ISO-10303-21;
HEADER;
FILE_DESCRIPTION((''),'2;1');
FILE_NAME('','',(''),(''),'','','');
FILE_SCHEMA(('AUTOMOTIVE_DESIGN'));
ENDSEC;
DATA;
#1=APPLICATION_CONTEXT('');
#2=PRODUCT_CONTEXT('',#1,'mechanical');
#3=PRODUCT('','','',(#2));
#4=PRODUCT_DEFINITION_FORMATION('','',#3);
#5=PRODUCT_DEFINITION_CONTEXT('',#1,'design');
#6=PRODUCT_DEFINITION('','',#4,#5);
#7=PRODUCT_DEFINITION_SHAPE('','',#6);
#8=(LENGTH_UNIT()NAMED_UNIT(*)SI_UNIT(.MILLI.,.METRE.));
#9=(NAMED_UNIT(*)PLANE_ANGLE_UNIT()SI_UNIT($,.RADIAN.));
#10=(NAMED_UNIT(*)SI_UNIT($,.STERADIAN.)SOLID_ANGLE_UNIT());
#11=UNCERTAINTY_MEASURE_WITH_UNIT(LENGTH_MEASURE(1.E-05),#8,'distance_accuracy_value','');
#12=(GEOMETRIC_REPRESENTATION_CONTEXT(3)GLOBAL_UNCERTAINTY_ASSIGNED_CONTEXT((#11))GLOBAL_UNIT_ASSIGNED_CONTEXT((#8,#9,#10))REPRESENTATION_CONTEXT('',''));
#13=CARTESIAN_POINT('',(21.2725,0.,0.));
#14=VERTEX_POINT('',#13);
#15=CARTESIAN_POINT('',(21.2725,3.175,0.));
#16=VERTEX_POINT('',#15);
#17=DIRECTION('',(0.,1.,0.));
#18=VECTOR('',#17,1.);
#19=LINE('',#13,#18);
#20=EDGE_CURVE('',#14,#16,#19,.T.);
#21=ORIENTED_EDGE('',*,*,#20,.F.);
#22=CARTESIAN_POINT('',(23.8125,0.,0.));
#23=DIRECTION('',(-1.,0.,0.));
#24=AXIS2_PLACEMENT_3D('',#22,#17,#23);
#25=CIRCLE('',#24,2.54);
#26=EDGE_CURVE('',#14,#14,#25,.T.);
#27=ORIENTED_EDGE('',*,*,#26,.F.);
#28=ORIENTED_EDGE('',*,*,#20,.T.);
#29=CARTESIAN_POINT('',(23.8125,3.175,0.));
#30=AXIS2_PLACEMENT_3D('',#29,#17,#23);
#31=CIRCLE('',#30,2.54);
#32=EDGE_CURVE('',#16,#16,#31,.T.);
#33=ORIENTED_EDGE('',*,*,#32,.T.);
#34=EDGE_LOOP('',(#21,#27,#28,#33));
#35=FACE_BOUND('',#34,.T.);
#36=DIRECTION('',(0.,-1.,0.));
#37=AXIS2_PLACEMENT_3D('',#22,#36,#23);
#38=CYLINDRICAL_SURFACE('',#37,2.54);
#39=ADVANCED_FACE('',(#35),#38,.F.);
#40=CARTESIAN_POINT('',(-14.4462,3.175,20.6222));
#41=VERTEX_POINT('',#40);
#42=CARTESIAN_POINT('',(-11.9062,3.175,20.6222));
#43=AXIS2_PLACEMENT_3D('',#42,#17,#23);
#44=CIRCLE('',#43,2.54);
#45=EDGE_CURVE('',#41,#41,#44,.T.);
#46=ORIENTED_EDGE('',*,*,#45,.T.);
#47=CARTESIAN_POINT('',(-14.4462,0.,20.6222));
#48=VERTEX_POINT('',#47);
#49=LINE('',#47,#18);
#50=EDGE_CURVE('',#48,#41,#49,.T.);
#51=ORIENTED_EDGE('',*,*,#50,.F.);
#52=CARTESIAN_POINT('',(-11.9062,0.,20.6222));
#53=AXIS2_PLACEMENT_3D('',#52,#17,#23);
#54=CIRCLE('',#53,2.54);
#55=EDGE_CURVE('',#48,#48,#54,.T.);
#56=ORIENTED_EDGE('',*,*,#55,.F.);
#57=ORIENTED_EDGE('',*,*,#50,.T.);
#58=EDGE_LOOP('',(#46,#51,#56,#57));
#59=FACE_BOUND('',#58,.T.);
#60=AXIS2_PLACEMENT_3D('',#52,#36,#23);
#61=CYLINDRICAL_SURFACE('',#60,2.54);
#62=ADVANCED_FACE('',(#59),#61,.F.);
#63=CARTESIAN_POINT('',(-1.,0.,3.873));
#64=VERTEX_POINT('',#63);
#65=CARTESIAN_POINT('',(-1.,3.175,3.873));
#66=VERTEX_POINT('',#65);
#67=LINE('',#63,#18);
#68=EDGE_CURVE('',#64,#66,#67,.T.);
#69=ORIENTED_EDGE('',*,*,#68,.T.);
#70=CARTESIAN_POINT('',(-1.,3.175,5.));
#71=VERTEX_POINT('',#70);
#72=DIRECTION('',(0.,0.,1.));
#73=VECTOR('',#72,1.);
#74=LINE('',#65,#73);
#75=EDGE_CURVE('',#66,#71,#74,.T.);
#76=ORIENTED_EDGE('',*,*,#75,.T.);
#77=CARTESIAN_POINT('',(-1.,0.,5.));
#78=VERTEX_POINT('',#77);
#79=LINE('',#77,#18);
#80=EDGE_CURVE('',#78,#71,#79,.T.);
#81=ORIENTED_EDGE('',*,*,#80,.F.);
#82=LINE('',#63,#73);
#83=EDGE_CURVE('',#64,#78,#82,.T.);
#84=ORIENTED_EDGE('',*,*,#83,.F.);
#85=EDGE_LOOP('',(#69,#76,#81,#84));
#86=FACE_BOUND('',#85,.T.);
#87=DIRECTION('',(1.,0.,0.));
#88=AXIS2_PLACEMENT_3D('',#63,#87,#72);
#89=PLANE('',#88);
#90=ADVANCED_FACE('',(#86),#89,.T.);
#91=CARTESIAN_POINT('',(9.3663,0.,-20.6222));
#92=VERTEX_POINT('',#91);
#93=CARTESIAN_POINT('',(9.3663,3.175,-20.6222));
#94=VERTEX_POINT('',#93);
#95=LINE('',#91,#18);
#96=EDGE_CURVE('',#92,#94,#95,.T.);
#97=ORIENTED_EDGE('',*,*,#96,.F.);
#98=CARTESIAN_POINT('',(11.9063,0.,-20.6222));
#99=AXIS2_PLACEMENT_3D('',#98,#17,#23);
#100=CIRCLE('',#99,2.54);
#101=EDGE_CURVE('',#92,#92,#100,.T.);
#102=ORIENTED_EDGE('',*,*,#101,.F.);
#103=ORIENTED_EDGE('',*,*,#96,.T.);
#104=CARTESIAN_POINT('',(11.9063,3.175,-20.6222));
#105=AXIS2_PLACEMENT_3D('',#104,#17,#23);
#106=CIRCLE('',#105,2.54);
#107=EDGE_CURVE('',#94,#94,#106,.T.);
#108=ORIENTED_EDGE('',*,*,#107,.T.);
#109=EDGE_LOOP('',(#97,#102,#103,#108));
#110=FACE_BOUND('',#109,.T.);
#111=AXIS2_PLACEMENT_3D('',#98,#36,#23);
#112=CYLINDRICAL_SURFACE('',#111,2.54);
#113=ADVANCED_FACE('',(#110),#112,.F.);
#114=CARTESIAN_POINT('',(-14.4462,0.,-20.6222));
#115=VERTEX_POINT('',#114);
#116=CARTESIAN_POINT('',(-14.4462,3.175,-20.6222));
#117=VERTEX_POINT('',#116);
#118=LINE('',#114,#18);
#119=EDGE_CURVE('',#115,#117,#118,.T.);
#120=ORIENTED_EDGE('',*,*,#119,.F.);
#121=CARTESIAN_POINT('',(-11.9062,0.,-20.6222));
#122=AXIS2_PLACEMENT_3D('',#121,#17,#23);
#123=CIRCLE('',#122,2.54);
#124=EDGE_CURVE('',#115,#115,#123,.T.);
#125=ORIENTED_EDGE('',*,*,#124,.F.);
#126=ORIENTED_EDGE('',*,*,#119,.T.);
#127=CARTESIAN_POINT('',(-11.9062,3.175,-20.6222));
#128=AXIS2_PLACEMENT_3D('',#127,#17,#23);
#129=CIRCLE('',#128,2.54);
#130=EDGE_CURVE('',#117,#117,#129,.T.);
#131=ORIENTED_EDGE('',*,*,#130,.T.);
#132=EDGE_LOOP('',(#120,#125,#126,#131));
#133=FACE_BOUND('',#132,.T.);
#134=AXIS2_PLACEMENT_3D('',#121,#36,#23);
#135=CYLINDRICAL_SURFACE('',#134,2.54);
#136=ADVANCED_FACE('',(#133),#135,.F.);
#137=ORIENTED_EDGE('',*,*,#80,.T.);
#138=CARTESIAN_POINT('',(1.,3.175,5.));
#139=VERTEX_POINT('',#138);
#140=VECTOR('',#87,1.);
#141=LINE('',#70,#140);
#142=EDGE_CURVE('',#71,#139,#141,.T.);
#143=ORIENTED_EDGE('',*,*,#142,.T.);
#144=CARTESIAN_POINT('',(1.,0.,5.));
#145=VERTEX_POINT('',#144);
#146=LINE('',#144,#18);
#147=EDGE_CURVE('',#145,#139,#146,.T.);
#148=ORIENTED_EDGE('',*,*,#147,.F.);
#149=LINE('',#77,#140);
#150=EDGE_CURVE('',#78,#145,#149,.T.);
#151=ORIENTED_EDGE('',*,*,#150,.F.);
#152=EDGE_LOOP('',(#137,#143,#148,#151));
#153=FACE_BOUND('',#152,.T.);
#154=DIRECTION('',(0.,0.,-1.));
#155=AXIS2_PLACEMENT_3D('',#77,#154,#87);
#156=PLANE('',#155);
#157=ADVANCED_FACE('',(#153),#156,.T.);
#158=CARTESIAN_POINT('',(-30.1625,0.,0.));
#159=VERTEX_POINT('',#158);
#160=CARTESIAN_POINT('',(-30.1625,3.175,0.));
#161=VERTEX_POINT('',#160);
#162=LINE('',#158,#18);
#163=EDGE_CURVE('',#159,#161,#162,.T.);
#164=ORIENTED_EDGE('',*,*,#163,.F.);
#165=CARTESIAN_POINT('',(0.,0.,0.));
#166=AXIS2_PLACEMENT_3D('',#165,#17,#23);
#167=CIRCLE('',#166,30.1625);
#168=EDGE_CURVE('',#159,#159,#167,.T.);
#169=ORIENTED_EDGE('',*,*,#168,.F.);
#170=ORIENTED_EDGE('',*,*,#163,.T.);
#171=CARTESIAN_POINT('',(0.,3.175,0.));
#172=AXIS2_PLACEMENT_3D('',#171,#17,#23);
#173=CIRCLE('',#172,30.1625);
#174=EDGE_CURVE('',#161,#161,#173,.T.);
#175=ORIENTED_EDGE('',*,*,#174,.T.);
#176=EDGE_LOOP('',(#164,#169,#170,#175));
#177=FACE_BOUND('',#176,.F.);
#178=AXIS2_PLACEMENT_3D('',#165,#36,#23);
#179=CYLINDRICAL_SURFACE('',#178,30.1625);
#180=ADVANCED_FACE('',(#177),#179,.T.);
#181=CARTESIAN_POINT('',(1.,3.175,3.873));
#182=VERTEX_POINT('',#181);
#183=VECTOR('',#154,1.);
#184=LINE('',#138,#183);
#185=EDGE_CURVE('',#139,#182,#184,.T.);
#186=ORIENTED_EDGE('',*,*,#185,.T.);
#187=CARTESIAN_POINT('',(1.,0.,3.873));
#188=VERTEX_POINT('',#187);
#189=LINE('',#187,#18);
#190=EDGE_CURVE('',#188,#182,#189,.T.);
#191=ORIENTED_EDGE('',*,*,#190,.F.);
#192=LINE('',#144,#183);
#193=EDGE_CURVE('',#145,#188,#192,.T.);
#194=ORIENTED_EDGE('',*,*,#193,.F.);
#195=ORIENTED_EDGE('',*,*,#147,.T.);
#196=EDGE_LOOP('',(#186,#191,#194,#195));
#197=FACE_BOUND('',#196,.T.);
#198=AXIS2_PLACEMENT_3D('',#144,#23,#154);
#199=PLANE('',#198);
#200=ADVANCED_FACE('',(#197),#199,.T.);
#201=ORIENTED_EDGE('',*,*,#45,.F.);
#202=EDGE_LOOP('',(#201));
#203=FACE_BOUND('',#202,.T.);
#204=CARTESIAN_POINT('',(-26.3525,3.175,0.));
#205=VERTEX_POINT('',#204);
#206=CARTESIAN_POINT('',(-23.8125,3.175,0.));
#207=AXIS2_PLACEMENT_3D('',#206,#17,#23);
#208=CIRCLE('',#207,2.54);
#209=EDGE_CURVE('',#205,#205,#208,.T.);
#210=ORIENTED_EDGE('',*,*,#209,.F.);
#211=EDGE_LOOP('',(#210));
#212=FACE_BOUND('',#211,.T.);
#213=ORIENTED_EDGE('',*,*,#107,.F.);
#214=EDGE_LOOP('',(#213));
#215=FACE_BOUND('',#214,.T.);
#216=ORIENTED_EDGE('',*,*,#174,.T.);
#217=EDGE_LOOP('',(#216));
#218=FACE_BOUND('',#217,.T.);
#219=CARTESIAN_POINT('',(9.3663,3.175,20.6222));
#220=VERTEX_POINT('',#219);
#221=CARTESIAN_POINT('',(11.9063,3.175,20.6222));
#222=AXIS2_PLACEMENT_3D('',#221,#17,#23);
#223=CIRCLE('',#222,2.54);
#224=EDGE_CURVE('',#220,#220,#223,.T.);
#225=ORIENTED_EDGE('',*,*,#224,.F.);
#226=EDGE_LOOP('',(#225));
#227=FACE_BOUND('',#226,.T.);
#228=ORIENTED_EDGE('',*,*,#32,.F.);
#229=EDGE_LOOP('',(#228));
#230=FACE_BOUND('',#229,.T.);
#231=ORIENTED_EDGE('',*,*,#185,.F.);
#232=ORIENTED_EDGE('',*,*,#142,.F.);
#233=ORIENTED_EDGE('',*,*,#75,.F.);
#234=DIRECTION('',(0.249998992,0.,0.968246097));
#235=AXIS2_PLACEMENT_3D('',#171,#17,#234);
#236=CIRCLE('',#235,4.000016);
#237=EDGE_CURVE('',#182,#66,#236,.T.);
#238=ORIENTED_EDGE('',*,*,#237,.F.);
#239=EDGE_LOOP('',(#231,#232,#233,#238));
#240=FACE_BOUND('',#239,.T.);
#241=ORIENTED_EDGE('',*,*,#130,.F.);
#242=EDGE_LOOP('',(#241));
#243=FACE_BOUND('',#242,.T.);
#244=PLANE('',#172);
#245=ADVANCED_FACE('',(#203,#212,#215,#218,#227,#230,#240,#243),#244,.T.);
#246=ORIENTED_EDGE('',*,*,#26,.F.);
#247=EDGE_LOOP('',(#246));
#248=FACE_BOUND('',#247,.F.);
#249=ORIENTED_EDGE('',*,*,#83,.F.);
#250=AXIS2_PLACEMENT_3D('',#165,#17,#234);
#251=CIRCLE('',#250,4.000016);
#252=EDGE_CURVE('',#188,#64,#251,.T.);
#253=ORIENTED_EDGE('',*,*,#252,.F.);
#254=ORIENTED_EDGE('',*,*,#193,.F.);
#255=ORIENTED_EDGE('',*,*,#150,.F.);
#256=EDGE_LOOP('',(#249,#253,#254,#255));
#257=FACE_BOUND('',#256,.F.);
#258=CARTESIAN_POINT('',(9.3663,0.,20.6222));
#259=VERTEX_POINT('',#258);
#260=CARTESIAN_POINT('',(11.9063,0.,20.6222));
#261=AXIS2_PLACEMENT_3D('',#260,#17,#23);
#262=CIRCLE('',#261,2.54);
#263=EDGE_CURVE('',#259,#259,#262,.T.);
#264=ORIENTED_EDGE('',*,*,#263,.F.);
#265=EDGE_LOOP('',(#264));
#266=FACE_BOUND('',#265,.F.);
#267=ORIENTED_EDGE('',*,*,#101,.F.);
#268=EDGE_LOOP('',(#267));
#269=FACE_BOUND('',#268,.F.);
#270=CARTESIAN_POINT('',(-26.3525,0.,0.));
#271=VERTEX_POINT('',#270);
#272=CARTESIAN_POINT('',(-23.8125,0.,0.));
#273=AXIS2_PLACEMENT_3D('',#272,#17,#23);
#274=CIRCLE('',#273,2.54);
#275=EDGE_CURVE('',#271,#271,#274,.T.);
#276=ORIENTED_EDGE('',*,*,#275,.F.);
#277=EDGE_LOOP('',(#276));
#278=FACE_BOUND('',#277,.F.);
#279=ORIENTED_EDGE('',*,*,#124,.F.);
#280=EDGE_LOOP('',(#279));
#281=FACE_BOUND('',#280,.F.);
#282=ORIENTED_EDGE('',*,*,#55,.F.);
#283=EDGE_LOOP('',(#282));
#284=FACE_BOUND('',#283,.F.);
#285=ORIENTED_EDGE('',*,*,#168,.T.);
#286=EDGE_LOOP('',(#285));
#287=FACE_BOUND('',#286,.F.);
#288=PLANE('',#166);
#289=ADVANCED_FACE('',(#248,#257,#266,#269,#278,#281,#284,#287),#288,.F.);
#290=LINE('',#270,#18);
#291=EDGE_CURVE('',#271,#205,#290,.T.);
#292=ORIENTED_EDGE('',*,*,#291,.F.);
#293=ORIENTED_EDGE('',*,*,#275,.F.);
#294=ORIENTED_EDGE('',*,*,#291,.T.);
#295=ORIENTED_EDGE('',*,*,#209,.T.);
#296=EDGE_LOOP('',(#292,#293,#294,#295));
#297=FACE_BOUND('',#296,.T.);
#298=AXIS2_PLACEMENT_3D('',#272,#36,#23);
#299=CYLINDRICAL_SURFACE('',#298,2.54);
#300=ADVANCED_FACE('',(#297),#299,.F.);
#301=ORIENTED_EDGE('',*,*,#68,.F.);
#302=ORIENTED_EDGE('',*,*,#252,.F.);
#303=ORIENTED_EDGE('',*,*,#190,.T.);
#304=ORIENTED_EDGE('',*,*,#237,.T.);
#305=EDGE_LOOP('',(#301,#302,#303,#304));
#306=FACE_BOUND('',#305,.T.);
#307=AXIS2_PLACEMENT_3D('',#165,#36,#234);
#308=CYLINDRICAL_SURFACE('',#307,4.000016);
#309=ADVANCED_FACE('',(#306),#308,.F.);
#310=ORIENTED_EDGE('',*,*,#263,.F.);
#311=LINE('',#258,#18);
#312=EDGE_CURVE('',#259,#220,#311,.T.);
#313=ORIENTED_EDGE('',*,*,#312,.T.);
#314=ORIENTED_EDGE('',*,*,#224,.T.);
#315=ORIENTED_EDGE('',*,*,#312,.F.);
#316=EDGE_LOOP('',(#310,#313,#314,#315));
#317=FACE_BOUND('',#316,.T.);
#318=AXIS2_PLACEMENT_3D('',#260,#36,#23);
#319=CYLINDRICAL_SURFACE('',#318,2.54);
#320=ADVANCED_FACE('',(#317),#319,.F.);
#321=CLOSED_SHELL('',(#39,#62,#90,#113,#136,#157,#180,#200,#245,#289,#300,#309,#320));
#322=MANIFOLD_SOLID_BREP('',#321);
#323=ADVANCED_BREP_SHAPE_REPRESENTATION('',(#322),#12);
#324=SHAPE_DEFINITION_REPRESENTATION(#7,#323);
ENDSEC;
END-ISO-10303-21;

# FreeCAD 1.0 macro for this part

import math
import FreeCAD as App
import Part
import Sketcher

V = App.Vector
Q = App.Units.Quantity

doc = App.newDocument("Part")
body = doc.addObject("PartDesign::Body", "Body")

# Sketch on XZ plane
sketch1 = doc.addObject("Sketcher::SketchObject", "Sketch")
body.addObject(sketch1)
sketch1.AttachmentSupport = (doc.XZ_Plane, [""])
sketch1.MapMode = "FlatFace"
sketch1.addGeometry(Part.Circle(V(0, 0, 0), V(0, 0, 1), 30.2), False)
sketch1.addGeometry(Part.Circle(V(11.9, -20.6, 0), V(0, 0, 1), 2.5), False)
sketch1.addGeometry(Part.Circle(V(-11.9, -20.6, 0), V(0, 0, 1), 2.5), False)
sketch1.addGeometry(Part.Circle(V(23.8, 0, 0), V(0, 0, 1), 2.5), False)
sketch1.addGeometry(Part.Circle(V(11.9, 20.6, 0), V(0, 0, 1), 2.5), False)
sketch1.addGeometry(Part.ArcOfCircle(Part.Circle(V(0, 0, 0), V(0, 0, 1), 4), math.radians(104), math.radians(436)), False)
sketch1.addGeometry(Part.LineSegment(V(1, 3.9, 0), V(1, 5, 0)), False)
sketch1.addGeometry(Part.LineSegment(V(1, 5, 0), V(-1, 5, 0)), False)
sketch1.addGeometry(Part.LineSegment(V(-1, 5, 0), V(-1, 3.9, 0)), False)
sketch1.addGeometry(Part.Circle(V(-23.8, 0, 0), V(0, 0, 1), 2.5), False)
sketch1.addGeometry(Part.Circle(V(-11.9, 20.6, 0), V(0, 0, 1), 2.5), False)
sketch1.addConstraint(Sketcher.Constraint("Coincident", 5, 2, 6, 1))
sketch1.addConstraint(Sketcher.Constraint("Coincident", 6, 2, 7, 1))
sketch1.addConstraint(Sketcher.Constraint("Coincident", 7, 2, 8, 1))
sketch1.addConstraint(Sketcher.Constraint("Coincident", 8, 2, 5, 1))
sketch1.addConstraint(Sketcher.Constraint("Vertical", 6))
sketch1.addConstraint(Sketcher.Constraint("Horizontal", 7))
sketch1.addConstraint(Sketcher.Constraint("Vertical", 8))
sketch1.addConstraint(Sketcher.Constraint("Coincident", 0, 3, -1, 1))
sketch1.addConstraint(Sketcher.Constraint("Coincident", 5, 3, -1, 1))
sketch1.addConstraint(Sketcher.Constraint("Equal", 1, 2))
sketch1.addConstraint(Sketcher.Constraint("Equal", 2, 3))
sketch1.addConstraint(Sketcher.Constraint("Equal", 3, 4))
sketch1.addConstraint(Sketcher.Constraint("Equal", 4, 9))
sketch1.addConstraint(Sketcher.Constraint("Equal", 9, 10))
sketch1.addConstraint(Sketcher.Constraint("Symmetric", 2, 3, 4, 3, -1, 1))
sketch1.addConstraint(Sketcher.Constraint("Symmetric", 3, 3, 9, 3, -1, 1))
sketch1.addConstraint(Sketcher.Constraint("Symmetric", 1, 3, 10, 3, -1, 1))
sketch1.addConstraint(Sketcher.Constraint("Symmetric", 1, 3, 2, 3, -2))
sketch1.addConstraint(Sketcher.Constraint("PointOnObject", 3, 3, -1))
sketch1.addConstraint(Sketcher.Constraint("Horizontal", 5, 2, 8, 2))
sketch1.addConstraint(Sketcher.Constraint("Diameter", 1, Q("0.2 in")))
sketch1.addConstraint(Sketcher.Constraint("Diameter", 0, Q("2.375 in")))
sketch1.addConstraint(Sketcher.Constraint("Radius", 5, 4.0))
sketch1.addConstraint(Sketcher.Constraint("DistanceX", -1, 1, 5, 2, 1.0))
sketch1.addConstraint(Sketcher.Constraint("DistanceX", -1, 1, 1, 3, Q("0.468752 in")))
sketch1.addConstraint(Sketcher.Constraint("DistanceX", -1, 1, 3, 3, Q("0.9375 in")))
sketch1.addConstraint(Sketcher.Constraint("DistanceY", 6, 1, 6, 2, 1.127))
sketch1.addConstraint(Sketcher.Constraint("DistanceY", 1, 3, -1, 1, Q("0.8119 in")))
pad1 = doc.addObject("PartDesign::Pad", "Pad")
body.addObject(pad1)
pad1.Profile = sketch1
pad1.Length = Q("0.125 in")
pad1.Reversed = True

doc.recompute()
